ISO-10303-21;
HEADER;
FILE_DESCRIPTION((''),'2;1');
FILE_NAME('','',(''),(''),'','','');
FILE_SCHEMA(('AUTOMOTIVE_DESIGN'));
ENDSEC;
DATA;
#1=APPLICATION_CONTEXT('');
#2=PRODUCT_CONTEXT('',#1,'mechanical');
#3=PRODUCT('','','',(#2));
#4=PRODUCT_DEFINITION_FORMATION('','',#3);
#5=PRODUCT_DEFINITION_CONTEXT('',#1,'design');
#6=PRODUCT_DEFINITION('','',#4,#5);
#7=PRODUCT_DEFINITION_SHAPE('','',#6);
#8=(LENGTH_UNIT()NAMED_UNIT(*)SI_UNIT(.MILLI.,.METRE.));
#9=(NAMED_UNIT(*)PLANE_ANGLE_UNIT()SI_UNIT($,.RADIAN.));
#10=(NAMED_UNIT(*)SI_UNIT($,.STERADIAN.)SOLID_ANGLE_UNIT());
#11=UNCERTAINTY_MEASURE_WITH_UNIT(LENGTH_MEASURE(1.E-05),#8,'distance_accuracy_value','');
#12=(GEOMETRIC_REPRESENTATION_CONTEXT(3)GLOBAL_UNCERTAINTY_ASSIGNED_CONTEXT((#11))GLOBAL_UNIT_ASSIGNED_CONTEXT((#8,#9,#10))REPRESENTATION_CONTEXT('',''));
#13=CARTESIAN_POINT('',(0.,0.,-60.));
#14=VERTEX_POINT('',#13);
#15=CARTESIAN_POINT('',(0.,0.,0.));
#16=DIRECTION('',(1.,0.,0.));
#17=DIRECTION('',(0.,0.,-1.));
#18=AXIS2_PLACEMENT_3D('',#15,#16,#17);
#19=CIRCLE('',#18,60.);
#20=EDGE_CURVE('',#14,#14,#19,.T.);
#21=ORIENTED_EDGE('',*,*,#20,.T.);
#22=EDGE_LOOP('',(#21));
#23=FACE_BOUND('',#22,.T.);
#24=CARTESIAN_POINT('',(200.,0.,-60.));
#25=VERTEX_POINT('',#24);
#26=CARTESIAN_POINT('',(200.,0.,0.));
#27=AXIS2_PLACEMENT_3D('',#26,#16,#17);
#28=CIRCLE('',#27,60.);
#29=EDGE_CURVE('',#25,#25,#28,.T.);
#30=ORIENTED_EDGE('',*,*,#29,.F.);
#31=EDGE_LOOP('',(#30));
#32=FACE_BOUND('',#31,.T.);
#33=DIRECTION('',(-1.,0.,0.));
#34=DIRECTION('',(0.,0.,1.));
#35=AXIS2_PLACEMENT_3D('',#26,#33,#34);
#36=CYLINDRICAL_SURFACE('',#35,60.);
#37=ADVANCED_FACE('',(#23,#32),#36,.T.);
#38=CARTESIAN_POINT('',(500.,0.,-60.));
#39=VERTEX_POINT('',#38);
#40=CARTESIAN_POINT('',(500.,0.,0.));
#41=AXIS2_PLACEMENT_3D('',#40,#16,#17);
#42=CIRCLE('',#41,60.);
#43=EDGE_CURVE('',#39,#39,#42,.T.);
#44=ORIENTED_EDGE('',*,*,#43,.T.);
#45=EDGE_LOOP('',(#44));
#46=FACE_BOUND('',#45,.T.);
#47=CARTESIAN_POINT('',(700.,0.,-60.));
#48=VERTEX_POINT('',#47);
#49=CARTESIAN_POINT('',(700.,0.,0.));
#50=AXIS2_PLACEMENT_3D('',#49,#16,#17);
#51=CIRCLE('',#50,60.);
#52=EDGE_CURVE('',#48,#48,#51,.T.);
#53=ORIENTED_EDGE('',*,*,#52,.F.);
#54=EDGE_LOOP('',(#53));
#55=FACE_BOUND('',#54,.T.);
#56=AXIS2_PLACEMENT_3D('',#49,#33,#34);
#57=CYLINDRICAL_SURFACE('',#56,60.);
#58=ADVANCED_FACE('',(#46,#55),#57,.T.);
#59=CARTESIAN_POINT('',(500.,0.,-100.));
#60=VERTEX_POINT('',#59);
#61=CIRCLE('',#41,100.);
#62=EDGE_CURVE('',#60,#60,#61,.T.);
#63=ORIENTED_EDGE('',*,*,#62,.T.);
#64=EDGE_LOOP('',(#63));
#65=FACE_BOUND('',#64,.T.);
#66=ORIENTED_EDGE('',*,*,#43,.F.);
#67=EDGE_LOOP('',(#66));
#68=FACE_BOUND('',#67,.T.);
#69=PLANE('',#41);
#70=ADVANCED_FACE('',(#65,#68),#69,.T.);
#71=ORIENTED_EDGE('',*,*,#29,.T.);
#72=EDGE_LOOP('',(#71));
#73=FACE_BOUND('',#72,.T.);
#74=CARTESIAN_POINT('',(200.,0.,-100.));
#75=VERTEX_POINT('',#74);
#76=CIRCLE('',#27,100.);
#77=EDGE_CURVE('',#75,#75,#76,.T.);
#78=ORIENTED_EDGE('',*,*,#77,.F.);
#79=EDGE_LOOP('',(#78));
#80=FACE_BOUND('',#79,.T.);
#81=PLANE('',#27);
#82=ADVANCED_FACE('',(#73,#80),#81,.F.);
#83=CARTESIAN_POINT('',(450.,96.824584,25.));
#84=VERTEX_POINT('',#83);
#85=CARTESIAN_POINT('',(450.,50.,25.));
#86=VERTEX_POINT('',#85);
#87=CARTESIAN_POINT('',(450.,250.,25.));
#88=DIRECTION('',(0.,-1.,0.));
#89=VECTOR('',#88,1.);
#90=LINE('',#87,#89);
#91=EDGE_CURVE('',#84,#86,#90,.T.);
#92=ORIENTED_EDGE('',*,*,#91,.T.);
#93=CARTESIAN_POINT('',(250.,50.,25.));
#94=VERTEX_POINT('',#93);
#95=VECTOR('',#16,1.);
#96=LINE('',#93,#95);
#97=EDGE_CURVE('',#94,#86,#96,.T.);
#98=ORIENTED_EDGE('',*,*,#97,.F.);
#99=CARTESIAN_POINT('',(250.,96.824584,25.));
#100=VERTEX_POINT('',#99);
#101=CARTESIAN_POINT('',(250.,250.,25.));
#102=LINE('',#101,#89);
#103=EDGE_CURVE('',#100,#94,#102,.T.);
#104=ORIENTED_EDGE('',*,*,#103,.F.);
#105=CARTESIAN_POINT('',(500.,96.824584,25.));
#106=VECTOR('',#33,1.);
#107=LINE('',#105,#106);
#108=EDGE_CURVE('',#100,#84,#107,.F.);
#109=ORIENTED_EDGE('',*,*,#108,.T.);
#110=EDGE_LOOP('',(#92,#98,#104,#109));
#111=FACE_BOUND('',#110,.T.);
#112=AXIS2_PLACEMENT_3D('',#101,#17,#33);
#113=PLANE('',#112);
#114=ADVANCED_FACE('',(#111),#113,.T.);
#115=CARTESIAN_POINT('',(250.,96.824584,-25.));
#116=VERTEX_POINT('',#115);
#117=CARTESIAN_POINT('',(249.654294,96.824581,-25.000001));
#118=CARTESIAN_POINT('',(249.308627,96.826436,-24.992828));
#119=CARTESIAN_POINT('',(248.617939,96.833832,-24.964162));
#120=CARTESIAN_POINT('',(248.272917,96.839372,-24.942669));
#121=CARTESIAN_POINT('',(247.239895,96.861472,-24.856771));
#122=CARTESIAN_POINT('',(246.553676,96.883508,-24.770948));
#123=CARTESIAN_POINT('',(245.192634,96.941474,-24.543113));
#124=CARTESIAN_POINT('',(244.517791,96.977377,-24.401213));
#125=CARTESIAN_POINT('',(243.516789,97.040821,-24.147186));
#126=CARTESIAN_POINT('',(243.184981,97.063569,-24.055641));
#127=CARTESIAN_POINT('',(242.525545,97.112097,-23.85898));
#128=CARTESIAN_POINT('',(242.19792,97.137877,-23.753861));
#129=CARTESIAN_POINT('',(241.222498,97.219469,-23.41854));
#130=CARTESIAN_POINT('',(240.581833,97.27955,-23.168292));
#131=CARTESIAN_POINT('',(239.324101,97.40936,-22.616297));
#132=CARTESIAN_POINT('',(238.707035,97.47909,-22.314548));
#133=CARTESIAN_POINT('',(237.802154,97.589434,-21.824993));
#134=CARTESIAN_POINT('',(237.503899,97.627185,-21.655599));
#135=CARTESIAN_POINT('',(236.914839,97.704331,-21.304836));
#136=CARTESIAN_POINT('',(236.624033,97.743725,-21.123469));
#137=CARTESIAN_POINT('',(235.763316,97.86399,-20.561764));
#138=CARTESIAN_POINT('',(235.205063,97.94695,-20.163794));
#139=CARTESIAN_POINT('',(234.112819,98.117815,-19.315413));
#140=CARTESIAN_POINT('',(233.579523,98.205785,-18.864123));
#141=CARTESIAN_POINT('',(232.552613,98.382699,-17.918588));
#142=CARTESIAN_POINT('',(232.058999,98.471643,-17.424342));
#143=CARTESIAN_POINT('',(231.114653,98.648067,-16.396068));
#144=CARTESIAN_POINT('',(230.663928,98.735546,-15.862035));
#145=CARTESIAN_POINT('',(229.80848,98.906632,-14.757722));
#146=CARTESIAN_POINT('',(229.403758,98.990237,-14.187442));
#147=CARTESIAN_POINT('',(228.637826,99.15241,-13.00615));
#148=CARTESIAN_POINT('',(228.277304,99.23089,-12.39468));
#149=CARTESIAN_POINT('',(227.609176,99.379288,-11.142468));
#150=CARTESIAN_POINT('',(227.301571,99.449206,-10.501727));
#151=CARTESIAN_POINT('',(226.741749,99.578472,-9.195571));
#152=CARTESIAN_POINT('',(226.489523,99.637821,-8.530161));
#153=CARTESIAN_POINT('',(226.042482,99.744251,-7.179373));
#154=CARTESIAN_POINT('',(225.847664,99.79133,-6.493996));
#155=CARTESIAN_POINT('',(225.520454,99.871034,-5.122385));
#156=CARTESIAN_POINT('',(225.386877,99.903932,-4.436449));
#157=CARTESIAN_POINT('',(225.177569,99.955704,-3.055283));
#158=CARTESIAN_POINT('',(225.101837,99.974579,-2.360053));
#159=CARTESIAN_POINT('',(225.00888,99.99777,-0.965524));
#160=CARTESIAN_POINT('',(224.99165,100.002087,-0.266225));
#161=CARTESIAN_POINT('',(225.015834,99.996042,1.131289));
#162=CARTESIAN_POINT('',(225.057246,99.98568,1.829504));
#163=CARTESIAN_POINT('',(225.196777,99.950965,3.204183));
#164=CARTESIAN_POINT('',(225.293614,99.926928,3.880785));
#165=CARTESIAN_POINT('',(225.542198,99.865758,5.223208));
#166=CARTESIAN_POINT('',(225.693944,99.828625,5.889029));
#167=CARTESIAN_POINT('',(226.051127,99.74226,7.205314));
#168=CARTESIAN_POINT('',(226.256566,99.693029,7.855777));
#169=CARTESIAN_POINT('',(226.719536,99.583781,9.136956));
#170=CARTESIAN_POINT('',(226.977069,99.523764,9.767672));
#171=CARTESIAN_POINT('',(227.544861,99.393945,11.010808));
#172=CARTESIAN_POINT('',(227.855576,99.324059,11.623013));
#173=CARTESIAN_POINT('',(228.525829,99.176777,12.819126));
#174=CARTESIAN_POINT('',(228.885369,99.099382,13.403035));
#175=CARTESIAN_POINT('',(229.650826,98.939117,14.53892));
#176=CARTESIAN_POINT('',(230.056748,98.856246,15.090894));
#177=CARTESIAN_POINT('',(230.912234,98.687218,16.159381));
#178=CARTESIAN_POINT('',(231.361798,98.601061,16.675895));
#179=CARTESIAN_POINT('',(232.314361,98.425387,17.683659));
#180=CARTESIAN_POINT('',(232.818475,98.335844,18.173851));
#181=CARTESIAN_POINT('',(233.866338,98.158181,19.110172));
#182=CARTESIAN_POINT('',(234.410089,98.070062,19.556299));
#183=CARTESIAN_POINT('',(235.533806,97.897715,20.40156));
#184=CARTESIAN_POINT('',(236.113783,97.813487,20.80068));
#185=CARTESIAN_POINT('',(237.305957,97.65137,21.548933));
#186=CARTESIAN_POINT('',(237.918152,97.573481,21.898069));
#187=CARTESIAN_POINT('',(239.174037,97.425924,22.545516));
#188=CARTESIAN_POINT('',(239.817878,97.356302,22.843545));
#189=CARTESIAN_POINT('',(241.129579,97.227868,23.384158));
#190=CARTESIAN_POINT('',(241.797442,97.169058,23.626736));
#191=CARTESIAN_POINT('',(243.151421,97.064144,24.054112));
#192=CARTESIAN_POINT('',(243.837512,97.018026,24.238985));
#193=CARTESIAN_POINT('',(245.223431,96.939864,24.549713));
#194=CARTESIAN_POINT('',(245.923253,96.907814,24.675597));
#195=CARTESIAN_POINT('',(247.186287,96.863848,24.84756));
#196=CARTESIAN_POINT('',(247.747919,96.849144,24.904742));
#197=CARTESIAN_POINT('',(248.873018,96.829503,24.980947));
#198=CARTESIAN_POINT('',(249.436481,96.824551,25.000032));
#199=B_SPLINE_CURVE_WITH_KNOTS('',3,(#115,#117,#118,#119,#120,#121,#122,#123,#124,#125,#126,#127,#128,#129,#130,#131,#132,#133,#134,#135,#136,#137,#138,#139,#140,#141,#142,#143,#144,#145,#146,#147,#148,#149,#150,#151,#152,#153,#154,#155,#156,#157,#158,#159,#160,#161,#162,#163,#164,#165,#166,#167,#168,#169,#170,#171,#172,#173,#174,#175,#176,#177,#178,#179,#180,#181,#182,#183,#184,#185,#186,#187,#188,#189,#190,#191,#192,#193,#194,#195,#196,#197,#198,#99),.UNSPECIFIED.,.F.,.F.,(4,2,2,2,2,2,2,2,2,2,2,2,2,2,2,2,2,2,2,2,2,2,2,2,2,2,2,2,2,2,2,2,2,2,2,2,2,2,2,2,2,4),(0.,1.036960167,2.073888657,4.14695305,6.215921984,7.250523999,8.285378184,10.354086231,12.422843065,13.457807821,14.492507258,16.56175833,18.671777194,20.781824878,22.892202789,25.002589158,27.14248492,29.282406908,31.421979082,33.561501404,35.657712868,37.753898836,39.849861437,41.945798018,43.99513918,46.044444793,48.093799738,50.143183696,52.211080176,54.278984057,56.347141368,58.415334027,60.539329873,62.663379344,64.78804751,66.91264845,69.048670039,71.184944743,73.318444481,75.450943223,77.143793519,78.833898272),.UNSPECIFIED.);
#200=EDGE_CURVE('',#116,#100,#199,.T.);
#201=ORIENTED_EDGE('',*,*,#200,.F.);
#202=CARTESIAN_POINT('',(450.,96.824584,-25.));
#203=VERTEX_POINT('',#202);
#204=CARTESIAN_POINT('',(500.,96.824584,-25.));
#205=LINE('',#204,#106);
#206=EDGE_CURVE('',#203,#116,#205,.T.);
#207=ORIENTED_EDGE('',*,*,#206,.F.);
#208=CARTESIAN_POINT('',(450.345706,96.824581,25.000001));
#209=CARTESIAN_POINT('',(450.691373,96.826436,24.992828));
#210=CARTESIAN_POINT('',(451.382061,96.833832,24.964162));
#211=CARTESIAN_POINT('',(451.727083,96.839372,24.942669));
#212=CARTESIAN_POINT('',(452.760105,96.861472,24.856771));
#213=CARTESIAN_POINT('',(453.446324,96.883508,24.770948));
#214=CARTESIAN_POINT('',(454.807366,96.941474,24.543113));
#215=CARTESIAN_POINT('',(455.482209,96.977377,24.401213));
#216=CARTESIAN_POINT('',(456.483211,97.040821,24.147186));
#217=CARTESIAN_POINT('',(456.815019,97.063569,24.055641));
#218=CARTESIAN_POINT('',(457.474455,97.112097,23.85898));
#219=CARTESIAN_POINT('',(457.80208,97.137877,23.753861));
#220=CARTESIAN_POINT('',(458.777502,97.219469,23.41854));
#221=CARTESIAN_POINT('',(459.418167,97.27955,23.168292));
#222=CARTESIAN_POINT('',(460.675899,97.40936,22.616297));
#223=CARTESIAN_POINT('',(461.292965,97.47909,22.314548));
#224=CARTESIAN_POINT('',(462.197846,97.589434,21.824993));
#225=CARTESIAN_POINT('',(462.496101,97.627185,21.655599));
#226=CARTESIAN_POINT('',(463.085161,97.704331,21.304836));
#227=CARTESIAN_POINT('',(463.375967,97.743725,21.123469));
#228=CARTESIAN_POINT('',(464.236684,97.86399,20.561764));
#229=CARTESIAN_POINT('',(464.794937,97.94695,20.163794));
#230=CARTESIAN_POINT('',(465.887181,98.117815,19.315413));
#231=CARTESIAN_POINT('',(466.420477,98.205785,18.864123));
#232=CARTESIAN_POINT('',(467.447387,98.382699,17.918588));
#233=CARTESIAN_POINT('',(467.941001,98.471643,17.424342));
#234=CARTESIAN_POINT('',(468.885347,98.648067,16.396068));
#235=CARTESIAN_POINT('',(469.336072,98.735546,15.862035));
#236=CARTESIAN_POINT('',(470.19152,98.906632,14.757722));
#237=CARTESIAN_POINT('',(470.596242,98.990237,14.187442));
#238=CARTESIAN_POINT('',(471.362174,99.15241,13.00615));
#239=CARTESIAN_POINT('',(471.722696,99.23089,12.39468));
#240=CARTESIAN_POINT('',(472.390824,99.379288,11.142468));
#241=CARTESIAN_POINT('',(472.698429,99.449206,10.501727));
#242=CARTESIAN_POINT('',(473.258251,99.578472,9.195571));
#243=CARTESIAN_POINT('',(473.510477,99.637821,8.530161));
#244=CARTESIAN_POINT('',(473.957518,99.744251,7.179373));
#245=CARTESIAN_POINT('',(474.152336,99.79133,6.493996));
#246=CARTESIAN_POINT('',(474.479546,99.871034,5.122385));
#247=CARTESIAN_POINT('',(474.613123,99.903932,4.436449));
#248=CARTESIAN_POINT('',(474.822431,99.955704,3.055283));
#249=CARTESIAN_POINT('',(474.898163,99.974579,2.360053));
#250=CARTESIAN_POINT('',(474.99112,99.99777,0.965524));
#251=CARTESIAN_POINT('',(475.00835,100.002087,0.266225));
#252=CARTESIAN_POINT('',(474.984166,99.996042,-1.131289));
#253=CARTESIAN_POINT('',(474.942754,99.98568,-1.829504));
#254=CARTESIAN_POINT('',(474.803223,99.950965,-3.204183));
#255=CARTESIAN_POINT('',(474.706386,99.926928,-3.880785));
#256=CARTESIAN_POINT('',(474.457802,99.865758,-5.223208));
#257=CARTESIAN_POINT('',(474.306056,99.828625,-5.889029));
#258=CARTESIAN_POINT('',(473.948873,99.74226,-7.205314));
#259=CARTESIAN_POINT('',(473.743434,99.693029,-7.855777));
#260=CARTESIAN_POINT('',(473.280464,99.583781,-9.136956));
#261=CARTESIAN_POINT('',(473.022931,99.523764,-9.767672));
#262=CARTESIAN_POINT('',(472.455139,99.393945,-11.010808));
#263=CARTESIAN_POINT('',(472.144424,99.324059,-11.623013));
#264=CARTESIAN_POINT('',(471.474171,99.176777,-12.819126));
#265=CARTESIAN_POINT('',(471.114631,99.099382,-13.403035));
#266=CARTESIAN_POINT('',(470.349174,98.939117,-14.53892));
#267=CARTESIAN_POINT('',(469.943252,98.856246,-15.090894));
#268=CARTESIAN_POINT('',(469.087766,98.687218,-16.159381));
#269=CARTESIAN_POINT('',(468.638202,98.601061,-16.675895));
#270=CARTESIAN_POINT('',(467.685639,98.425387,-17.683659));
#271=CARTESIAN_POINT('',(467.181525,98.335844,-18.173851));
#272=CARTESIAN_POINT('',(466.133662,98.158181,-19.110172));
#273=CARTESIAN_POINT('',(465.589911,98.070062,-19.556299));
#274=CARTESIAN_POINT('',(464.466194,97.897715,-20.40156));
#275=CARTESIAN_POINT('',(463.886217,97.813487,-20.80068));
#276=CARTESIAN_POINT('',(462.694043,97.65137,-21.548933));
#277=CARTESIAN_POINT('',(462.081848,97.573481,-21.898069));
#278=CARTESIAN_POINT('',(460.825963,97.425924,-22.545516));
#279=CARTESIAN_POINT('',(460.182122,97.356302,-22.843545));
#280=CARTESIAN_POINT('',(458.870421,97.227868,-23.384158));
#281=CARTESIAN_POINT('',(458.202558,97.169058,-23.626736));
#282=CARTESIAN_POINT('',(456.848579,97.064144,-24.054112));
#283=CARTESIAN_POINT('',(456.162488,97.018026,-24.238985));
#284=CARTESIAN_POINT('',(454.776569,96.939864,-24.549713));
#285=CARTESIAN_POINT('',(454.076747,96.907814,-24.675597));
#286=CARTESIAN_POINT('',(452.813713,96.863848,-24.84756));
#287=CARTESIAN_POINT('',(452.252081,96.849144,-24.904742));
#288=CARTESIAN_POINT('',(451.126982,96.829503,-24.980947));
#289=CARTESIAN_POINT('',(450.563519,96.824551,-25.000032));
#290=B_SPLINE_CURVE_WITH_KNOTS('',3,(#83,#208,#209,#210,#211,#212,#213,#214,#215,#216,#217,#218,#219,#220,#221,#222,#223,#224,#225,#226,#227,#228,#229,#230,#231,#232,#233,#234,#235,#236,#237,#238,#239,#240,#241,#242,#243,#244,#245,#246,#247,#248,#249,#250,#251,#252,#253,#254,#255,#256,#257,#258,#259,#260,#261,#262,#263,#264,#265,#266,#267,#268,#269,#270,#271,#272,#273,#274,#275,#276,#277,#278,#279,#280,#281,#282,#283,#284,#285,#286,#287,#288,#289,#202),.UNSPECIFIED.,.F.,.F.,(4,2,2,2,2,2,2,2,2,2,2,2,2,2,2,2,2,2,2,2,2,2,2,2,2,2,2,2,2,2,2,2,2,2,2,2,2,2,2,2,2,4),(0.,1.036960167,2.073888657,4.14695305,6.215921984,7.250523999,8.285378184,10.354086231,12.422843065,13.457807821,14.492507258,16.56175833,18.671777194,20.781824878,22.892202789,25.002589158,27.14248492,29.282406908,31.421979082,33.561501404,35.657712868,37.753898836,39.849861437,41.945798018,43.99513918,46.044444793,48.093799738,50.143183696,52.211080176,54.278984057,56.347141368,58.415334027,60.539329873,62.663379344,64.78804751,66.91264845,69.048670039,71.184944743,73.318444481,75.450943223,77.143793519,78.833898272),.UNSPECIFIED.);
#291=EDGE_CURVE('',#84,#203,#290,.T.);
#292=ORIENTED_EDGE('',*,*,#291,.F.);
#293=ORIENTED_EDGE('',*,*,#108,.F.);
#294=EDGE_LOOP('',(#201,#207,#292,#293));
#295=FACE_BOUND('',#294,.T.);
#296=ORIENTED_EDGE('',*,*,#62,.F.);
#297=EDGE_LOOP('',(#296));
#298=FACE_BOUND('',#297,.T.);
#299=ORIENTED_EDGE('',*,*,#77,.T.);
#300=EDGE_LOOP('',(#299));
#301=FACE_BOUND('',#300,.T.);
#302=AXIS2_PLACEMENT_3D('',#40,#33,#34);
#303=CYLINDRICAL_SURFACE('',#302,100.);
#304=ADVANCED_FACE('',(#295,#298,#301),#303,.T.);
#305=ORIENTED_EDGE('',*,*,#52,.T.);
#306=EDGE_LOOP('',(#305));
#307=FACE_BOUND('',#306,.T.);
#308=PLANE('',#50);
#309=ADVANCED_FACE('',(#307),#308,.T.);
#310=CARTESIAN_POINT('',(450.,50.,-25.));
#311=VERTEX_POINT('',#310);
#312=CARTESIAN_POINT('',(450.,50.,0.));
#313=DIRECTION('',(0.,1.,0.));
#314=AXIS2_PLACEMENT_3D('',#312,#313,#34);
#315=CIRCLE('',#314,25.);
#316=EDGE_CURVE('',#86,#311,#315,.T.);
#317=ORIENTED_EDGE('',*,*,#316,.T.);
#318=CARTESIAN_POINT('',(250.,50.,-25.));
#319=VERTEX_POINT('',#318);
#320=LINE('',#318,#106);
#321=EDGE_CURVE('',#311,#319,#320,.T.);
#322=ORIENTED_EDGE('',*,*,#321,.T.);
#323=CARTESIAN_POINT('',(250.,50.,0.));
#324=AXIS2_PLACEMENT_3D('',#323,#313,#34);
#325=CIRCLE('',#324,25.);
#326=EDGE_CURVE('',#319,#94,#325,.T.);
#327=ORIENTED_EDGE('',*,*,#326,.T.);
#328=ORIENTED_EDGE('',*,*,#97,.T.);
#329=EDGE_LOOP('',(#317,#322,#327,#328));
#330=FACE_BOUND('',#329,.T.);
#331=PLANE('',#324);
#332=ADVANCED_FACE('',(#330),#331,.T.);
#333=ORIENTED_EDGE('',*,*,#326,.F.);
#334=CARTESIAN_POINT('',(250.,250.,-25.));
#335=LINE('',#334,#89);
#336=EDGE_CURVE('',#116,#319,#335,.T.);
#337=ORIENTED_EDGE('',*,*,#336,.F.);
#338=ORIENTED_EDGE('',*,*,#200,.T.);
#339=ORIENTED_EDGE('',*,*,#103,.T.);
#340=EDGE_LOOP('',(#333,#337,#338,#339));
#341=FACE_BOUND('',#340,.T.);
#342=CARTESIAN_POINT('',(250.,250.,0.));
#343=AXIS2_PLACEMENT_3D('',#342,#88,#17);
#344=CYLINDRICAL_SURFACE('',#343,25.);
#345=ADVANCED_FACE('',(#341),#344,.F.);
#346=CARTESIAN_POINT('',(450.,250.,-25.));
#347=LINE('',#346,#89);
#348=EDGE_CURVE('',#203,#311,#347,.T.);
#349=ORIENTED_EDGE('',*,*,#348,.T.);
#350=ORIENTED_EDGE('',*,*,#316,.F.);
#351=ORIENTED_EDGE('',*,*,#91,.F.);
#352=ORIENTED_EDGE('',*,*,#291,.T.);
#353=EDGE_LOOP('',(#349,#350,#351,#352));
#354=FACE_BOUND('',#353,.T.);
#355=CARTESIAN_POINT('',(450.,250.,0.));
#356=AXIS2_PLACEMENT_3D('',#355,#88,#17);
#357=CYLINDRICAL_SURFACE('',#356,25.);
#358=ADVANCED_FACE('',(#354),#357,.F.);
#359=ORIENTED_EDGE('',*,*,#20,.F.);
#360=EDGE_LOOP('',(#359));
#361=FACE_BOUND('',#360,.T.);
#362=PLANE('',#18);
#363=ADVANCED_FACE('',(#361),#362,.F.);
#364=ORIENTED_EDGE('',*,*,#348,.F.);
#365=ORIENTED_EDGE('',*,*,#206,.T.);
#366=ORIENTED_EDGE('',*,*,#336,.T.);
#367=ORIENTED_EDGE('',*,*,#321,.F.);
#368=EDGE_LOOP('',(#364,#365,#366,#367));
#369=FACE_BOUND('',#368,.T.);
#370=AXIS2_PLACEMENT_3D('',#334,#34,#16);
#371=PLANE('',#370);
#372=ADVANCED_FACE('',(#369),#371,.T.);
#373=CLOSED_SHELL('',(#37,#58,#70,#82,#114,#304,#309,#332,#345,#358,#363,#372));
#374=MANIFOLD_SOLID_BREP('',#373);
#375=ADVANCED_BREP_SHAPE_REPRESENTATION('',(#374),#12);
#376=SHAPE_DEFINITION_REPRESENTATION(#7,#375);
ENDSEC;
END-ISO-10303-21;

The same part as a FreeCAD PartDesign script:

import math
import FreeCAD as App
import Part
import Sketcher
Q = App.Units.Quantity

doc = App.newDocument("Part")
body = doc.addObject("PartDesign::Body", "Body")

# Sketch on YZ plane
sketch1 = body.newObject("Sketcher::SketchObject", "Sketch")
sketch1.AttachmentSupport = (doc.getObject("YZ_Plane"), [""])
sketch1.MapMode = "FlatFace"
sketch1.addGeometry(Part.Circle(App.Vector(0, 0, 0), App.Vector(0, 0, 1), 60), False)
sketch1.addConstraint([
    Sketcher.Constraint("Coincident", 0, 3, -1, 1),
    Sketcher.Constraint("Diameter", 0, Q("120 mm")),
])
pad1 = body.newObject("PartDesign::Pad", "Pad")
pad1.Profile = sketch1
pad1.Length = 200

# Sketch on YZ plane
sketch2 = body.newObject("Sketcher::SketchObject", "Sketch001")
sketch2.AttachmentSupport = (doc.getObject("YZ_Plane"), [""])
sketch2.MapMode = "FlatFace"
sketch2.AttachmentOffset = App.Placement(App.Vector(0, 0, 200), App.Rotation())
sketch2.addGeometry(Part.Circle(App.Vector(0, 0, 0), App.Vector(0, 0, 1), 100), False)
sketch2.addConstraint([
    Sketcher.Constraint("Coincident", 0, 3, -1, 1),
    Sketcher.Constraint("Diameter", 0, Q("200 mm")),
])
pad2 = body.newObject("PartDesign::Pad", "Pad001")
pad2.Profile = sketch2
pad2.Length = 300

# Sketch on YZ plane
sketch3 = body.newObject("Sketcher::SketchObject", "Sketch002")
sketch3.AttachmentSupport = (doc.getObject("YZ_Plane"), [""])
sketch3.MapMode = "FlatFace"
sketch3.AttachmentOffset = App.Placement(App.Vector(0, 0, 500), App.Rotation())
sketch3.addGeometry(Part.Circle(App.Vector(0, 0, 0), App.Vector(0, 0, 1), 60), False)
sketch3.addConstraint([
    Sketcher.Constraint("Coincident", 0, 3, -1, 1),
    Sketcher.Constraint("Diameter", 0, Q("120 mm")),
])
pad3 = body.newObject("PartDesign::Pad", "Pad002")
pad3.Profile = sketch3
pad3.Length = 200

# Sketch on XZ plane
sketch4 = body.newObject("Sketcher::SketchObject", "Sketch003")
sketch4.AttachmentSupport = (doc.getObject("XZ_Plane"), [""])
sketch4.MapMode = "FlatFace"
sketch4.AttachmentOffset = App.Placement(App.Vector(0, 0, -50), App.Rotation())
sketch4.addGeometry([
    Part.LineSegment(App.Vector(450, -25, 0), App.Vector(250, -25, 0)),
    Part.ArcOfCircle(Part.Circle(App.Vector(250, 0, 0), App.Vector(0, 0, 1), 25), math.radians(90), math.radians(270)),
    Part.LineSegment(App.Vector(250, 25, 0), App.Vector(450, 25, 0)),
    Part.ArcOfCircle(Part.Circle(App.Vector(450, 0, 0), App.Vector(0, 0, 1), 25), math.radians(-90), math.radians(90)),
], False)
sketch4.addConstraint([
    Sketcher.Constraint("Tangent", 0, 2, 1, 2),
    Sketcher.Constraint("Tangent", 1, 1, 2, 1),
    Sketcher.Constraint("Tangent", 2, 2, 3, 2),
    Sketcher.Constraint("Tangent", 3, 1, 0, 1),
    Sketcher.Constraint("Horizontal", 0),
    Sketcher.Constraint("Horizontal", 2),
    Sketcher.Constraint("PointOnObject", 1, 3, -1),
    Sketcher.Constraint("Radius", 1, Q("25 mm")),
    Sketcher.Constraint("DistanceX", 0, 2, 0, 1, Q("200 mm")),
    Sketcher.Constraint("DistanceX", -1, 1, 1, 3, Q("250 mm")),
])
pocket1 = body.newObject("PartDesign::Pocket", "Pocket")
pocket1.Profile = sketch4
pocket1.Length = 200

doc.recompute()
